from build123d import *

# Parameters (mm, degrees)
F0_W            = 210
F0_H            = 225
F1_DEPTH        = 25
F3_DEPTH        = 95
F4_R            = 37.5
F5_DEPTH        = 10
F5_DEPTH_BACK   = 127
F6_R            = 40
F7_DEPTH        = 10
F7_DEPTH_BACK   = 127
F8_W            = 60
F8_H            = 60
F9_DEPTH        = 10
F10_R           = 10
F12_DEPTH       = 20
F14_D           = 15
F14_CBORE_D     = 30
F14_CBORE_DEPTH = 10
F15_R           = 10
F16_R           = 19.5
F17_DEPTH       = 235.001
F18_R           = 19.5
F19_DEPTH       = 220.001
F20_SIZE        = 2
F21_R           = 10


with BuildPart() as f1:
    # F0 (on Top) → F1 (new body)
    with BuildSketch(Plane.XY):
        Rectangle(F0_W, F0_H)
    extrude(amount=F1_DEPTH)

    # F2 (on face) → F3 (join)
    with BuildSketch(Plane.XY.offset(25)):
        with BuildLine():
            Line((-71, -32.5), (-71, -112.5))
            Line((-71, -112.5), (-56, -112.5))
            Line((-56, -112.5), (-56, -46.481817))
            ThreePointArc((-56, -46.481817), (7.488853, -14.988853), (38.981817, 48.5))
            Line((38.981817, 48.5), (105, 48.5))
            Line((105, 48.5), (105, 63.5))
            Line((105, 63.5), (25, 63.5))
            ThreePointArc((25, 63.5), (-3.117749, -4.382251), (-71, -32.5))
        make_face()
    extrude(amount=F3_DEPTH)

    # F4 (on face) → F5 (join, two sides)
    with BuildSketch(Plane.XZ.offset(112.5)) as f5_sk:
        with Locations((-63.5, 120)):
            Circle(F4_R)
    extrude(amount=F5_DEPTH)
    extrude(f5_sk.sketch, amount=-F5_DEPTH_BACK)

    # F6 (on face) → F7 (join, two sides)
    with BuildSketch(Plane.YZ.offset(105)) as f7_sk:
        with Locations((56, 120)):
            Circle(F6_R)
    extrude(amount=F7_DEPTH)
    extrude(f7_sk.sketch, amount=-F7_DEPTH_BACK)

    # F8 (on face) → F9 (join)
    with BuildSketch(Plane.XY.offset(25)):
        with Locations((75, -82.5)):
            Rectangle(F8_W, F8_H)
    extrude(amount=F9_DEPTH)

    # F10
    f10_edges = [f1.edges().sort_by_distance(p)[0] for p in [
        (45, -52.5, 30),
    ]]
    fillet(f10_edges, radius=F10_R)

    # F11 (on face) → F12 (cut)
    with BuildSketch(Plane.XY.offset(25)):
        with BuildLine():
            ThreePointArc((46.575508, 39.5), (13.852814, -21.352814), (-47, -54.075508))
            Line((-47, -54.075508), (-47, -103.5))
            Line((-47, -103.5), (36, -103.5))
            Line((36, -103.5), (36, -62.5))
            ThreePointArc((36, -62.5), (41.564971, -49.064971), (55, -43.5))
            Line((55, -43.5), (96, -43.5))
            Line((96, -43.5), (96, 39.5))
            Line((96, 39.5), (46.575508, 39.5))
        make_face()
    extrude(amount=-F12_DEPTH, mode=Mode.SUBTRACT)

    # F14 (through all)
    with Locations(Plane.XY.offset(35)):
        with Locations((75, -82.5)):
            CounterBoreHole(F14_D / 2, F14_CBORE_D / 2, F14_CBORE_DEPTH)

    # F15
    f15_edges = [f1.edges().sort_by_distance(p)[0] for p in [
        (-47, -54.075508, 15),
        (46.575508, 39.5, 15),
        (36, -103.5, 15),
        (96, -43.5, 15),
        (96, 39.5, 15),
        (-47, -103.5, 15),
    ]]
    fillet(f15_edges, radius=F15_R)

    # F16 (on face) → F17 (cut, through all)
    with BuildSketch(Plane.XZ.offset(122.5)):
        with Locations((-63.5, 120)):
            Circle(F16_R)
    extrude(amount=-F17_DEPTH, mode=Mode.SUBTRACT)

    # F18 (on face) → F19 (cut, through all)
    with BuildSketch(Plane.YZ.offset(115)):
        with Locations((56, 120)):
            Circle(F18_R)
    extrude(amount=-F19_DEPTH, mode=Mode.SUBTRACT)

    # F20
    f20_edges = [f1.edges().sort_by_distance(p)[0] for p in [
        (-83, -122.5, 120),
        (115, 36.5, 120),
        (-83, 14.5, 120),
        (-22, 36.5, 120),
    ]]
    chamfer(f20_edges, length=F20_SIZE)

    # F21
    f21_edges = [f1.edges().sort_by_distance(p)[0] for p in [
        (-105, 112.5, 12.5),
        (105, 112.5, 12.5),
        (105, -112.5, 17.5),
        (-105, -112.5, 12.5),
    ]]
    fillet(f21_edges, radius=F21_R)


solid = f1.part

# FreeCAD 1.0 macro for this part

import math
import FreeCAD as App
import Part
import Sketcher

V = App.Vector
Q = App.Units.Quantity


def edges_at(feature, points):
    """Names of the edges that pass closest to the given points."""
    edges = feature.Shape.Edges
    near = lambda p: min(range(len(edges)), key=lambda i: edges[i].distToShape(Part.Vertex(*p))[0])
    return sorted({f"Edge{near(p) + 1}" for p in points})


def add_polygon(sketch, points):
    """Adds a closed chain of lines whose ends are joined by coincident constraints."""
    first, n = sketch.GeometryCount, len(points)
    for a, b in zip(points, points[1:] + points[:1]):
        sketch.addGeometry(Part.LineSegment(App.Vector(*a, 0), App.Vector(*b, 0)), False)
    for i in range(n):
        sketch.addConstraint(Sketcher.Constraint("Coincident", first + i, 2, first + (i + 1) % n, 1))

doc = App.newDocument("Part")
body = doc.addObject("PartDesign::Body", "Body")

sketch1 = body.newObject("Sketcher::SketchObject", "Sketch")
sketch1.AttachmentSupport = (doc.getObject("XY_Plane"), [""])
sketch1.MapMode = "FlatFace"
add_polygon(sketch1, [(-105, 112), (-105, -112), (105, -112), (105, 112)])
sketch1.addConstraint(Sketcher.Constraint("Vertical", 0))
sketch1.addConstraint(Sketcher.Constraint("Horizontal", 1))
sketch1.addConstraint(Sketcher.Constraint("Vertical", 2))
sketch1.addConstraint(Sketcher.Constraint("Horizontal", 3))
sketch1.addConstraint(Sketcher.Constraint("Symmetric", 0, 2, 2, 2, -1, 1))
sketch1.addConstraint(Sketcher.Constraint("DistanceX", 1, 1, 1, 2, Q("210 mm")))
sketch1.addConstraint(Sketcher.Constraint("DistanceY", 0, 2, 0, 1, Q("225 mm")))
pad1 = body.newObject("PartDesign::Pad", "Pad")
pad1.Profile = sketch1
pad1.Length = 25

sketch2 = body.newObject("Sketcher::SketchObject", "Sketch001")
sketch2.AttachmentSupport = (doc.getObject("XY_Plane"), [""])
sketch2.MapMode = "FlatFace"
sketch2.AttachmentOffset = App.Placement(V(0, 0, 25), App.Rotation())
sketch2.addGeometry(Part.LineSegment(V(-71, -32, 0), V(-71, -112, 0)), False)
sketch2.addGeometry(Part.LineSegment(V(-71, -112, 0), V(-56, -112, 0)), False)
sketch2.addGeometry(Part.LineSegment(V(-56, -112, 0), V(-56, -46, 0)), False)
sketch2.addGeometry(Part.ArcOfCircle(Part.Circle(V(-71, 63, 0), V(0, 0, 1), 111), math.radians(-82), math.radians(-8)), False)
sketch2.addGeometry(Part.LineSegment(V(39, 48, 0), V(105, 48, 0)), False)
sketch2.addGeometry(Part.LineSegment(V(105, 48, 0), V(105, 64, 0)), False)
sketch2.addGeometry(Part.LineSegment(V(105, 64, 0), V(25, 64, 0)), False)
sketch2.addGeometry(Part.ArcOfCircle(Part.Circle(V(-71, 63, 0), V(0, 0, 1), 96), math.radians(-90), math.radians(0)), False)
sketch2.addConstraint(Sketcher.Constraint("Coincident", 0, 2, 1, 1))
sketch2.addConstraint(Sketcher.Constraint("Coincident", 1, 2, 2, 1))
sketch2.addConstraint(Sketcher.Constraint("Coincident", 2, 2, 3, 1))
sketch2.addConstraint(Sketcher.Constraint("Coincident", 3, 2, 4, 1))
sketch2.addConstraint(Sketcher.Constraint("Coincident", 4, 2, 5, 1))
sketch2.addConstraint(Sketcher.Constraint("Coincident", 5, 2, 6, 1))
sketch2.addConstraint(Sketcher.Constraint("Coincident", 6, 2, 7, 2))
sketch2.addConstraint(Sketcher.Constraint("Coincident", 7, 1, 0, 1))
sketch2.addConstraint(Sketcher.Constraint("Vertical", 0))
sketch2.addConstraint(Sketcher.Constraint("Horizontal", 1))
sketch2.addConstraint(Sketcher.Constraint("Vertical", 2))
sketch2.addConstraint(Sketcher.Constraint("Horizontal", 4))
sketch2.addConstraint(Sketcher.Constraint("Vertical", 5))
sketch2.addConstraint(Sketcher.Constraint("Horizontal", 6))
sketch2.addConstraint(Sketcher.Constraint("Coincident", 7, 3, 3, 3))
sketch2.addConstraint(Sketcher.Constraint("Horizontal", 7, 3, 5, 2))
sketch2.addConstraint(Sketcher.Constraint("Vertical", 7, 3, 0, 2))
sketch2.addConstraint(Sketcher.Constraint("Equal", 6, 0))
sketch2.addConstraint(Sketcher.Constraint("Equal", 4, 2))
sketch2.addConstraint(Sketcher.Constraint("Radius", 3, Q("111 mm")))
sketch2.addConstraint(Sketcher.Constraint("Radius", 7, Q("96 mm")))
sketch2.addConstraint(Sketcher.Constraint("DistanceX", 1, 1, 1, 2, Q("15 mm")))
sketch2.addConstraint(Sketcher.Constraint("DistanceX", 6, 2, 6, 1, Q("80 mm")))
sketch2.addConstraint(Sketcher.Constraint("DistanceX", 3, 3, -1, 1, Q("71 mm")))
sketch2.addConstraint(Sketcher.Constraint("DistanceY", -1, 1, 3, 3, Q("63.5 mm")))
pad2 = body.newObject("PartDesign::Pad", "Pad001")
pad2.Profile = sketch2
pad2.Length = 95

sketch3 = body.newObject("Sketcher::SketchObject", "Sketch002")
sketch3.AttachmentSupport = (doc.getObject("XZ_Plane"), [""])
sketch3.MapMode = "FlatFace"
sketch3.AttachmentOffset = App.Placement(V(0, 0, 112.5), App.Rotation())
sketch3.addGeometry(Part.Circle(V(-64, 120, 0), V(0, 0, 1), 38), False)
sketch3.addConstraint(Sketcher.Constraint("Diameter", 0, Q("75 mm")))
sketch3.addConstraint(Sketcher.Constraint("DistanceY", -1, 1, 0, 3, Q("120 mm")))
sketch3.addConstraint(Sketcher.Constraint("DistanceX", 0, 3, -1, 1, Q("63.5 mm")))
pad3 = body.newObject("PartDesign::Pad", "Pad002")
pad3.Profile = sketch3
pad3.Type = "TwoLengths"
pad3.Length = 10
pad3.Length2 = 127

sketch4 = body.newObject("Sketcher::SketchObject", "Sketch003")
sketch4.AttachmentSupport = (doc.getObject("YZ_Plane"), [""])
sketch4.MapMode = "FlatFace"
sketch4.AttachmentOffset = App.Placement(V(0, 0, 105), App.Rotation())
sketch4.addGeometry(Part.Circle(V(56, 120, 0), V(0, 0, 1), 40), False)
sketch4.addConstraint(Sketcher.Constraint("Diameter", 0, Q("80 mm")))
sketch4.addConstraint(Sketcher.Constraint("DistanceX", -1, 1, 0, 3, Q("56 mm")))
sketch4.addConstraint(Sketcher.Constraint("DistanceY", -1, 1, 0, 3, Q("120 mm")))
pad4 = body.newObject("PartDesign::Pad", "Pad003")
pad4.Profile = sketch4
pad4.Type = "TwoLengths"
pad4.Length = 10
pad4.Length2 = 127

sketch5 = body.newObject("Sketcher::SketchObject", "Sketch004")
sketch5.AttachmentSupport = (doc.getObject("XY_Plane"), [""])
sketch5.MapMode = "FlatFace"
sketch5.AttachmentOffset = App.Placement(V(0, 0, 25), App.Rotation())
add_polygon(sketch5, [(45, -52), (45, -112), (105, -112), (105, -52)])
sketch5.addConstraint(Sketcher.Constraint("Vertical", 0))
sketch5.addConstraint(Sketcher.Constraint("Horizontal", 1))
sketch5.addConstraint(Sketcher.Constraint("Vertical", 2))
sketch5.addConstraint(Sketcher.Constraint("Horizontal", 3))
sketch5.addConstraint(Sketcher.Constraint("Equal", 3, 0))
sketch5.addConstraint(Sketcher.Constraint("DistanceX", 1, 1, 1, 2, Q("60 mm")))
sketch5.addConstraint(Sketcher.Constraint("DistanceX", -1, 1, 0, 2, Q("45 mm")))
sketch5.addConstraint(Sketcher.Constraint("DistanceY", 0, 2, -1, 1, Q("112.5 mm")))
pad5 = body.newObject("PartDesign::Pad", "Pad004")
pad5.Profile = sketch5
pad5.Length = 10
doc.recompute()

fillet = body.newObject("PartDesign::Fillet", "Fillet")
fillet.Base = (pad5, edges_at(pad5, [(45, -52.5, 30)]))
fillet.Radius = 10

sketch6 = body.newObject("Sketcher::SketchObject", "Sketch005")
sketch6.AttachmentSupport = (doc.getObject("XY_Plane"), [""])
sketch6.MapMode = "FlatFace"
sketch6.AttachmentOffset = App.Placement(V(0, 0, 25), App.Rotation())
sketch6.addGeometry(Part.ArcOfCircle(Part.Circle(V(-71, 63, 0), V(0, 0, 1), 120), math.radians(-78), math.radians(-12)), False)
sketch6.addGeometry(Part.LineSegment(V(-47, -54, 0), V(-47, -104, 0)), False)
sketch6.addGeometry(Part.LineSegment(V(-47, -104, 0), V(36, -104, 0)), False)
sketch6.addGeometry(Part.LineSegment(V(36, -104, 0), V(36, -62, 0)), False)
sketch6.addGeometry(Part.ArcOfCircle(Part.Circle(V(55, -62, 0), V(0, 0, 1), 19), math.radians(90), math.radians(180)), False)
sketch6.addGeometry(Part.LineSegment(V(55, -44, 0), V(96, -44, 0)), False)
sketch6.addGeometry(Part.LineSegment(V(96, -44, 0), V(96, 40, 0)), False)
sketch6.addGeometry(Part.LineSegment(V(96, 40, 0), V(47, 40, 0)), False)
sketch6.addConstraint(Sketcher.Constraint("Coincident", 0, 1, 1, 1))
sketch6.addConstraint(Sketcher.Constraint("Coincident", 1, 2, 2, 1))
sketch6.addConstraint(Sketcher.Constraint("Coincident", 2, 2, 3, 1))
sketch6.addConstraint(Sketcher.Constraint("Tangent", 3, 2, 4, 2))
sketch6.addConstraint(Sketcher.Constraint("Tangent", 4, 1, 5, 1))
sketch6.addConstraint(Sketcher.Constraint("Coincident", 5, 2, 6, 1))
sketch6.addConstraint(Sketcher.Constraint("Coincident", 6, 2, 7, 1))
sketch6.addConstraint(Sketcher.Constraint("Coincident", 7, 2, 0, 2))
sketch6.addConstraint(Sketcher.Constraint("Vertical", 1))
sketch6.addConstraint(Sketcher.Constraint("Horizontal", 2))
sketch6.addConstraint(Sketcher.Constraint("Vertical", 3))
sketch6.addConstraint(Sketcher.Constraint("Horizontal", 5))
sketch6.addConstraint(Sketcher.Constraint("Vertical", 6))
sketch6.addConstraint(Sketcher.Constraint("Horizontal", 7))
sketch6.addConstraint(Sketcher.Constraint("Equal", 7, 1))
sketch6.addConstraint(Sketcher.Constraint("Equal", 5, 3))
sketch6.addConstraint(Sketcher.Constraint("Equal", 2, 6))
sketch6.addConstraint(Sketcher.Constraint("Radius", 0, Q("120 mm")))
sketch6.addConstraint(Sketcher.Constraint("Radius", 4, Q("18.999999 mm")))
sketch6.addConstraint(Sketcher.Constraint("DistanceX", 2, 1, 2, 2, Q("83 mm")))
sketch6.addConstraint(Sketcher.Constraint("DistanceX", 5, 1, 5, 2, Q("41 mm")))
sketch6.addConstraint(Sketcher.Constraint("DistanceX", 0, 3, -1, 1, Q("71 mm")))
sketch6.addConstraint(Sketcher.Constraint("DistanceX", -1, 1, 4, 3, Q("54.999999 mm")))
sketch6.addConstraint(Sketcher.Constraint("DistanceY", -1, 1, 0, 3, Q("63.5 mm")))
pocket1 = body.newObject("PartDesign::Pocket", "Pocket")
pocket1.Profile = sketch6
pocket1.Length = 20

sketch7 = body.newObject("Sketcher::SketchObject", "Sketch006")
sketch7.AttachmentSupport = (doc.getObject("XY_Plane"), [""])
sketch7.MapMode = "FlatFace"
sketch7.AttachmentOffset = App.Placement(V(0, 0, 35), App.Rotation())
sketch7.addGeometry(Part.Circle(V(75, -82, 0), V(0, 0, 1), 8), False)
sketch7.addConstraint(Sketcher.Constraint("Diameter", 0, Q("15 mm")))
sketch7.addConstraint(Sketcher.Constraint("DistanceX", -1, 1, 0, 3, Q("75 mm")))
sketch7.addConstraint(Sketcher.Constraint("DistanceY", 0, 3, -1, 1, Q("82.5 mm")))
doc.recompute()
hole = body.newObject("PartDesign::Hole", "Hole")
hole.Profile = sketch7
hole.ThreadType = "None"
hole.Diameter = 15
hole.DepthType = "ThroughAll"
hole.HoleCutType = "Counterbore"
hole.HoleCutDiameter = 30
hole.HoleCutDepth = 10
doc.recompute()

fillet2 = body.newObject("PartDesign::Fillet", "Fillet001")
fillet2.Base = (hole, edges_at(hole, [
    (-47, -54.076, 15),
    (46.576, 39.5, 15),
    (36, -103.5, 15),
    (96, -43.5, 15),
    (96, 39.5, 15),
    (-47, -103.5, 15),
]))
fillet2.Radius = 10

sketch8 = body.newObject("Sketcher::SketchObject", "Sketch007")
sketch8.AttachmentSupport = (doc.getObject("XZ_Plane"), [""])
sketch8.MapMode = "FlatFace"
sketch8.AttachmentOffset = App.Placement(V(0, 0, 122.5), App.Rotation())
sketch8.addGeometry(Part.Circle(V(-64, 120, 0), V(0, 0, 1), 20), False)
sketch8.addConstraint(Sketcher.Constraint("Diameter", 0, Q("39 mm")))
sketch8.addConstraint(Sketcher.Constraint("DistanceY", -1, 1, 0, 3, Q("120 mm")))
sketch8.addConstraint(Sketcher.Constraint("DistanceX", 0, 3, -1, 1, Q("63.5 mm")))
pocket2 = body.newObject("PartDesign::Pocket", "Pocket001")
pocket2.Profile = sketch8
pocket2.Type = "ThroughAll"

sketch9 = body.newObject("Sketcher::SketchObject", "Sketch008")
sketch9.AttachmentSupport = (doc.getObject("YZ_Plane"), [""])
sketch9.MapMode = "FlatFace"
sketch9.AttachmentOffset = App.Placement(V(0, 0, 115), App.Rotation())
sketch9.addGeometry(Part.Circle(V(56, 120, 0), V(0, 0, 1), 20), False)
sketch9.addConstraint(Sketcher.Constraint("Diameter", 0, Q("39 mm")))
sketch9.addConstraint(Sketcher.Constraint("DistanceX", -1, 1, 0, 3, Q("56 mm")))
sketch9.addConstraint(Sketcher.Constraint("DistanceY", -1, 1, 0, 3, Q("120 mm")))
pocket3 = body.newObject("PartDesign::Pocket", "Pocket002")
pocket3.Profile = sketch9
pocket3.Type = "ThroughAll"
doc.recompute()

chamfer = body.newObject("PartDesign::Chamfer", "Chamfer")
chamfer.Base = (pocket3, edges_at(pocket3, [
    (-83, -122.5, 120),
    (115, 36.5, 120),
    (-83, 14.5, 120),
    (-22, 36.5, 120),
]))
chamfer.Size = 2
doc.recompute()

fillet3 = body.newObject("PartDesign::Fillet", "Fillet002")
fillet3.Base = (chamfer, edges_at(chamfer, [
    (-105, 112.5, 12.5),
    (105, 112.5, 12.5),
    (105, -112.5, 17.5),
    (-105, -112.5, 12.5),
]))
fillet3.Radius = 10

doc.recompute()
